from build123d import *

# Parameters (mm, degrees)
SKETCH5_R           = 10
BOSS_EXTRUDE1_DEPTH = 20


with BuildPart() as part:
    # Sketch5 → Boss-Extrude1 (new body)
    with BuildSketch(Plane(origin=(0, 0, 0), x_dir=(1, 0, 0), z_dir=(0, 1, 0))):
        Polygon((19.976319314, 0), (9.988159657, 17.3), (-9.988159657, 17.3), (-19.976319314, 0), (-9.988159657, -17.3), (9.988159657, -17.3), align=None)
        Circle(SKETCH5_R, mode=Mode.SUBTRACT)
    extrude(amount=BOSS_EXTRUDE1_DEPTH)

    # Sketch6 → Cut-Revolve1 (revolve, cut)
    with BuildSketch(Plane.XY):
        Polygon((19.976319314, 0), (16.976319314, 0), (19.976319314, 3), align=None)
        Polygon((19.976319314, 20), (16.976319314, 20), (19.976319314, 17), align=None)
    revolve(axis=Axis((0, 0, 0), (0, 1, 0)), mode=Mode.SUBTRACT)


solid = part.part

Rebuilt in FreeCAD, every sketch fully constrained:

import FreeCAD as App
import Part
import Sketcher
from FreeCAD import Vector
Q = App.Units.Quantity

doc = App.newDocument("Part")
body = doc.addObject("PartDesign::Body", "Body")

sketch1 = body.newObject("Sketcher::SketchObject", "Sketch")
sketch1.AttachmentSupport = (doc.getObject("XZ_Plane"), [""])
sketch1.MapMode = "FlatFace"
sketch1.addGeometry(Part.LineSegment(Vector(19.976319, 0, 0), Vector(9.98816, -17.3, 0)), False)
sketch1.addGeometry(Part.LineSegment(Vector(9.98816, -17.3, 0), Vector(-9.98816, -17.3, 0)), False)
sketch1.addGeometry(Part.LineSegment(Vector(-9.98816, -17.3, 0), Vector(-19.976319, 0, 0)), False)
sketch1.addGeometry(Part.LineSegment(Vector(-19.976319, 0, 0), Vector(-9.98816, 17.3, 0)), False)
sketch1.addGeometry(Part.LineSegment(Vector(-9.98816, 17.3, 0), Vector(9.98816, 17.3, 0)), False)
sketch1.addGeometry(Part.LineSegment(Vector(9.98816, 17.3, 0), Vector(19.976319, 0, 0)), False)
sketch1.addGeometry(Part.Circle(Vector(0, 0, 0), Vector(0, 0, 1), 10), False)
sketch1.addConstraint(Sketcher.Constraint("Coincident", 0, 2, 1, 1))
sketch1.addConstraint(Sketcher.Constraint("Coincident", 1, 2, 2, 1))
sketch1.addConstraint(Sketcher.Constraint("Coincident", 2, 2, 3, 1))
sketch1.addConstraint(Sketcher.Constraint("Coincident", 3, 2, 4, 1))
sketch1.addConstraint(Sketcher.Constraint("Coincident", 4, 2, 5, 1))
sketch1.addConstraint(Sketcher.Constraint("Coincident", 5, 2, 0, 1))
sketch1.addConstraint(Sketcher.Constraint("Horizontal", 1))
sketch1.addConstraint(Sketcher.Constraint("Horizontal", 4))
sketch1.addConstraint(Sketcher.Constraint("Coincident", 6, 3, -1, 1))
sketch1.addConstraint(Sketcher.Constraint("Symmetric", 0, 2, 3, 2, -1, 1))
sketch1.addConstraint(Sketcher.Constraint("Symmetric", 2, 2, 5, 2, -1, 1))
sketch1.addConstraint(Sketcher.Constraint("PointOnObject", 2, 2, -1))
sketch1.addConstraint(Sketcher.Constraint("Parallel", 2, 5))
sketch1.addConstraint(Sketcher.Constraint("Vertical", 1, 2, 3, 2))
sketch1.addConstraint(Sketcher.Constraint("Diameter", 6, 20.0))
sketch1.addConstraint(Sketcher.Constraint("Angle", 0, Q("-120 deg")))
sketch1.addConstraint(Sketcher.Constraint("DistanceY", 0, 2, -1, 1, 17.3))
sketch1.addConstraint(Sketcher.Constraint("DistanceX", 1, 2, 1, 1, 19.976319))
pad1 = body.newObject("PartDesign::Pad", "Pad")
pad1.Profile = sketch1
pad1.Length = 20
pad1.Reversed = True

sketch2 = body.newObject("Sketcher::SketchObject", "Sketch001")
sketch2.AttachmentSupport = (doc.getObject("XY_Plane"), [""])
sketch2.MapMode = "FlatFace"
sketch2.addGeometry(Part.LineSegment(Vector(16.976319, 0, 0), Vector(19.976319, 0, 0)), False)
sketch2.addGeometry(Part.LineSegment(Vector(19.976319, 0, 0), Vector(19.976319, 3, 0)), False)
sketch2.addGeometry(Part.LineSegment(Vector(19.976319, 3, 0), Vector(16.976319, 0, 0)), False)
sketch2.addGeometry(Part.LineSegment(Vector(19.976319, 20, 0), Vector(16.976319, 20, 0)), False)
sketch2.addGeometry(Part.LineSegment(Vector(16.976319, 20, 0), Vector(19.976319, 17, 0)), False)
sketch2.addGeometry(Part.LineSegment(Vector(19.976319, 17, 0), Vector(19.976319, 20, 0)), False)
sketch2.addConstraint(Sketcher.Constraint("Coincident", 0, 2, 1, 1))
sketch2.addConstraint(Sketcher.Constraint("Coincident", 1, 2, 2, 1))
sketch2.addConstraint(Sketcher.Constraint("Coincident", 2, 2, 0, 1))
sketch2.addConstraint(Sketcher.Constraint("Coincident", 3, 2, 4, 1))
sketch2.addConstraint(Sketcher.Constraint("Coincident", 4, 2, 5, 1))
sketch2.addConstraint(Sketcher.Constraint("Coincident", 5, 2, 3, 1))
sketch2.addConstraint(Sketcher.Constraint("Horizontal", 0))
sketch2.addConstraint(Sketcher.Constraint("Vertical", 1))
sketch2.addConstraint(Sketcher.Constraint("Horizontal", 3))
sketch2.addConstraint(Sketcher.Constraint("Vertical", 5))
sketch2.addConstraint(Sketcher.Constraint("PointOnObject", 0, 2, -1))
sketch2.addConstraint(Sketcher.Constraint("Perpendicular", 2, 4))
sketch2.addConstraint(Sketcher.Constraint("Vertical", 2, 2, 3, 2))
sketch2.addConstraint(Sketcher.Constraint("Vertical", 1, 2, 4, 2))
sketch2.addConstraint(Sketcher.Constraint("Equal", 3, 1))
sketch2.addConstraint(Sketcher.Constraint("DistanceX", 0, 1, 0, 2, 3.0))
sketch2.addConstraint(Sketcher.Constraint("DistanceY", -1, 1, 3, 2, 20.0))
sketch2.addConstraint(Sketcher.Constraint("DistanceX", -1, 1, 0, 2, 19.976319))
groove = body.newObject("PartDesign::Groove", "Groove")
groove.Profile = sketch2
groove.ReferenceAxis = (sketch2, ["V_Axis"])
groove.Angle = 360

doc.recompute()
